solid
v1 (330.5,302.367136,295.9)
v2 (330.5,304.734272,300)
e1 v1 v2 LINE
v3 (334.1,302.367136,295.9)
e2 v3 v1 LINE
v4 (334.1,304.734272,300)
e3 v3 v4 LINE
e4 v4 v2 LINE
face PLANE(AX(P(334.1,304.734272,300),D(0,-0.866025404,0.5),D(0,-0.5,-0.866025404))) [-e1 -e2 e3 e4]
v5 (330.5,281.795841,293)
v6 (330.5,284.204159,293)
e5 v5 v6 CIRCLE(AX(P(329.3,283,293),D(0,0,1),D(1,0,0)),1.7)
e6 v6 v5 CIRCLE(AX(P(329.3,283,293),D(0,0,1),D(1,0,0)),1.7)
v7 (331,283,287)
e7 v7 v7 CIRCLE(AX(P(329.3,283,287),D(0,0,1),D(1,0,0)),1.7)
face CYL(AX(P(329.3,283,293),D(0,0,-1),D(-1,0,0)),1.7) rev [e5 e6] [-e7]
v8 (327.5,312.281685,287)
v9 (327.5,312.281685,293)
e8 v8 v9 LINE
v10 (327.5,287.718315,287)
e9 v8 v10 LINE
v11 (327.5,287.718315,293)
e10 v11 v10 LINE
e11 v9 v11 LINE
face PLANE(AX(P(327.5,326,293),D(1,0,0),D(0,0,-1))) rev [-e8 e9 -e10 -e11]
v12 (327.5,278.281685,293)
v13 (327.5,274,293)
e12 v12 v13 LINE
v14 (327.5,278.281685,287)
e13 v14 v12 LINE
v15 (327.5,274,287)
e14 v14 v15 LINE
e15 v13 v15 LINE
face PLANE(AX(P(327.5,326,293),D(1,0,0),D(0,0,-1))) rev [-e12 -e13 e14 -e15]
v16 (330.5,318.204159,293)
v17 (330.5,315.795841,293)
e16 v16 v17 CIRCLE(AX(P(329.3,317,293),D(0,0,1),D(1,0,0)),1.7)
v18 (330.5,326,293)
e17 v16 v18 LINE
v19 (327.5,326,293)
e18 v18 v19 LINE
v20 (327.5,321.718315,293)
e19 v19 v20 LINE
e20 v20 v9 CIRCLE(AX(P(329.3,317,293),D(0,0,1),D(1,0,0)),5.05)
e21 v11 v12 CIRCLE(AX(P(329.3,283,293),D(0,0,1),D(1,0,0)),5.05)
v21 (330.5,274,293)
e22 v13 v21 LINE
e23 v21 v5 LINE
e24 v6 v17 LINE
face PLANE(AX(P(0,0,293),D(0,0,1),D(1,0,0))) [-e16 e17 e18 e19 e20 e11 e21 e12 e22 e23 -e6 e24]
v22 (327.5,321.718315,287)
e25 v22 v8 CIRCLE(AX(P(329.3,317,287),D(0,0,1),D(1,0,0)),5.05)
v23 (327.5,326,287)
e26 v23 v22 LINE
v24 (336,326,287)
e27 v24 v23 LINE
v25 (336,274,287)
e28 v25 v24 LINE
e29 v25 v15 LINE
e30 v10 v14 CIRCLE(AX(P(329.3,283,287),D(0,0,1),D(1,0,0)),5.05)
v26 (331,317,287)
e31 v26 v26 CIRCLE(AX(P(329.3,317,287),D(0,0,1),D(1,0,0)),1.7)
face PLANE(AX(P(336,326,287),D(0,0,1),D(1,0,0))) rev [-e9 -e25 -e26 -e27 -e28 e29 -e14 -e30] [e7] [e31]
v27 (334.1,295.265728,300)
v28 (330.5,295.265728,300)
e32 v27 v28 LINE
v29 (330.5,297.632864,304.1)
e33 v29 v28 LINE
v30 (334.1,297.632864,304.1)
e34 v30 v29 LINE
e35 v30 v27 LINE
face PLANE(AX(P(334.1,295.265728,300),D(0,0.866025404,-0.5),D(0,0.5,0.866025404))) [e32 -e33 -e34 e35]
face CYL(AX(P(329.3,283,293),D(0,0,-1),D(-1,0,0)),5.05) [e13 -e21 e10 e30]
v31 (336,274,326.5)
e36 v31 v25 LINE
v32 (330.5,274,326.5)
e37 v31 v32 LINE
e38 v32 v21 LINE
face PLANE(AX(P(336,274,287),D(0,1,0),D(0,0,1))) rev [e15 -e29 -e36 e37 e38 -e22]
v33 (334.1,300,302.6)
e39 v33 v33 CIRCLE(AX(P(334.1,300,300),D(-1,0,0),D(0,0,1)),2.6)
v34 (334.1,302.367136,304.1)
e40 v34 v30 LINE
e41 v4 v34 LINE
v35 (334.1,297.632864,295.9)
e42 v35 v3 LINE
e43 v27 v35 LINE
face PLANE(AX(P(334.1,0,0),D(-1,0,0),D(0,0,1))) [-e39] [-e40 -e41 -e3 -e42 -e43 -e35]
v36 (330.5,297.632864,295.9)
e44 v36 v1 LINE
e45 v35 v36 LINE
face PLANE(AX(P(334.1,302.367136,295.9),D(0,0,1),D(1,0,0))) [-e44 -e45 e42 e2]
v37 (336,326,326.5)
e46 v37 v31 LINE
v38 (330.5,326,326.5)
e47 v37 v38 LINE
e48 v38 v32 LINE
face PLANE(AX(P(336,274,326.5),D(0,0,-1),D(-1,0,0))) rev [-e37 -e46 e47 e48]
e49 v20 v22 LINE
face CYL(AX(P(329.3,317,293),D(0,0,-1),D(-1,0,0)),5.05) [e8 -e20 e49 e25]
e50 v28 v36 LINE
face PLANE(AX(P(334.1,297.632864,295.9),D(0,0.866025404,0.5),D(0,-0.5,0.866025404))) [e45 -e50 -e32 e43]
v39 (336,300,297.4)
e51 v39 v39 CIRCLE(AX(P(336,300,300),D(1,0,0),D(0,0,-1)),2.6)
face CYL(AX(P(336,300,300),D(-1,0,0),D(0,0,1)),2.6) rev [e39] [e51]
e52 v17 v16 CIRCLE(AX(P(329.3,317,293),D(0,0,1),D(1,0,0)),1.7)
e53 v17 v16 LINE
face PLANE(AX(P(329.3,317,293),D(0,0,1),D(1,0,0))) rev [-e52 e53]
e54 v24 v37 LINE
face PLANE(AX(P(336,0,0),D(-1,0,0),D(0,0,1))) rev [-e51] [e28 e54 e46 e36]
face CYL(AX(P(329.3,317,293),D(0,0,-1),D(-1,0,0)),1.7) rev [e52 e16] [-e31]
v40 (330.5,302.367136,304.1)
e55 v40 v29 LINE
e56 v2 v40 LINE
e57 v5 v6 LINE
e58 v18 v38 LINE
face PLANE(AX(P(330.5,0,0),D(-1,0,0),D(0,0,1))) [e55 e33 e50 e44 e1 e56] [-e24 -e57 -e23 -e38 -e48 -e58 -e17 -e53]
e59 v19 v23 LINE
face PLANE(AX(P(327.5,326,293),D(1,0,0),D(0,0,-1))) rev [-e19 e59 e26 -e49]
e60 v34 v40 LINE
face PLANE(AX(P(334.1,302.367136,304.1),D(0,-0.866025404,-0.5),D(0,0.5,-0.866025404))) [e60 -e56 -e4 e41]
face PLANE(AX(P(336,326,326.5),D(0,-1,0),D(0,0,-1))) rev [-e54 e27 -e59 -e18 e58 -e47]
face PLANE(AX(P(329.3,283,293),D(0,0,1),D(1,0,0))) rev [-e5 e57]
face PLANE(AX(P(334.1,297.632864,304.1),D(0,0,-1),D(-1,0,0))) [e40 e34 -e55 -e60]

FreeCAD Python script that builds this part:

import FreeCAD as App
import Part
import Sketcher
from FreeCAD import Vector
Q = App.Units.Quantity


def add_polygon(sketch, points):
    """Adds a closed chain of lines whose ends are joined by coincident constraints."""
    first, n = sketch.GeometryCount, len(points)
    for a, b in zip(points, points[1:] + points[:1]):
        sketch.addGeometry(Part.LineSegment(App.Vector(*a, 0), App.Vector(*b, 0)), False)
    for i in range(n):
        sketch.addConstraint(Sketcher.Constraint("Coincident", first + i, 2, first + (i + 1) % n, 1))

doc = App.newDocument("Part")
body = doc.addObject("PartDesign::Body", "Body")

# Sketch on YZ plane
sketch1 = doc.addObject("Sketcher::SketchObject", "Sketch")
body.addObject(sketch1)
sketch1.AttachmentSupport = (doc.YZ_Plane, [""])
sketch1.MapMode = "FlatFace"
sketch1.AttachmentOffset = App.Placement(Vector(0, 0, 330.5), App.Rotation())
add_polygon(sketch1, [(326, 326.5), (274, 326.5), (274, 287), (326, 287)])  # lines 0-3
sketch1.addGeometry(Part.Circle(Vector(300, 300, 0), Vector(0, 0, 1), 2.6), False)  # 4
sketch1.addConstraint([
    Sketcher.Constraint("Horizontal", 0),
    Sketcher.Constraint("Vertical", 1),
    Sketcher.Constraint("Horizontal", 2),
    Sketcher.Constraint("Vertical", 3),
    Sketcher.Constraint("Diameter", 4, Q("5.2 mm")),
    Sketcher.Constraint("DistanceX", 0, 2, 0, 1, Q("52 mm")),
    Sketcher.Constraint("DistanceY", 1, 2, 1, 1, Q("39.5 mm")),
    Sketcher.Constraint("DistanceX", -1, 1, 4, 3, Q("300 mm")),
    Sketcher.Constraint("DistanceY", -1, 1, 4, 3, Q("300 mm")),
    Sketcher.Constraint("DistanceX", -1, 1, 0, 2, Q("274 mm")),
    Sketcher.Constraint("DistanceY", -1, 1, 1, 2, Q("287 mm")),
])
pad1 = doc.addObject("PartDesign::Pad", "Pad")
body.addObject(pad1)
pad1.Profile = sketch1
pad1.Length = 5.5

# Sketch on YZ plane
sketch2 = doc.addObject("Sketcher::SketchObject", "Sketch001")
body.addObject(sketch2)
sketch2.AttachmentSupport = (doc.YZ_Plane, [""])
sketch2.MapMode = "FlatFace"
sketch2.AttachmentOffset = App.Placement(Vector(0, 0, 330.5), App.Rotation())
add_polygon(sketch2, [(304.7, 300), (302.4, 304.1), (297.6, 304.1), (295.3, 300), (297.6, 295.9), (302.4, 295.9)])  # lines 0-5
sketch2.addConstraint([
    Sketcher.Constraint("Horizontal", 1),
    Sketcher.Constraint("Horizontal", 4),
    Sketcher.Constraint("Parallel", 0, 3),
    Sketcher.Constraint("Parallel", 2, 5),
    Sketcher.Constraint("Horizontal", 2, 2, 5, 2),
    Sketcher.Constraint("Vertical", 1, 2, 3, 2),
    Sketcher.Constraint("Vertical", 0, 2, 4, 2),
    Sketcher.Constraint("Angle", 0, Q("120 deg")),
    Sketcher.Constraint("DistanceY", -1, 1, 2, 2, Q("300 mm")),
    Sketcher.Constraint("DistanceY", -1, 1, 0, 2, Q("304.1 mm")),
    Sketcher.Constraint("DistanceX", 1, 2, 1, 1, Q("4.734272 mm")),
    Sketcher.Constraint("DistanceX", -1, 1, 0, 2, Q("302.367136 mm")),
])
pocket1 = doc.addObject("PartDesign::Pocket", "Pocket")
body.addObject(pocket1)
pocket1.Profile = sketch2
pocket1.Length = 3.6
pocket1.Reversed = True

# Sketch on XY plane
sketch3 = doc.addObject("Sketcher::SketchObject", "Sketch002")
body.addObject(sketch3)
sketch3.AttachmentSupport = (doc.XY_Plane, [""])
sketch3.MapMode = "FlatFace"
sketch3.AttachmentOffset = App.Placement(Vector(0, 0, 287), App.Rotation())
add_polygon(sketch3, [(328, 326), (328, 274), (336, 274), (336, 326)])  # lines 0-3
sketch3.addConstraint([
    Sketcher.Constraint("Vertical", 0),
    Sketcher.Constraint("Horizontal", 1),
    Sketcher.Constraint("Vertical", 2),
    Sketcher.Constraint("Horizontal", 3),
    Sketcher.Constraint("DistanceY", 0, 2, 0, 1, Q("52 mm")),
    Sketcher.Constraint("DistanceX", 1, 1, 1, 2, Q("8.5 mm")),
    Sketcher.Constraint("DistanceY", -1, 1, 0, 2, Q("274 mm")),
    Sketcher.Constraint("DistanceX", -1, 1, 1, 2, Q("336 mm")),
])
pad2 = doc.addObject("PartDesign::Pad", "Pad001")
body.addObject(pad2)
pad2.Profile = sketch3
pad2.Length = 6

# Sketch on XY plane
sketch4 = doc.addObject("Sketcher::SketchObject", "Sketch003")
body.addObject(sketch4)
sketch4.AttachmentSupport = (doc.XY_Plane, [""])
sketch4.MapMode = "FlatFace"
sketch4.AttachmentOffset = App.Placement(Vector(0, 0, 287), App.Rotation())
sketch4.addGeometry([
    Part.Circle(Vector(329.3, 283, 0), Vector(0, 0, 1), 5),
    Part.Circle(Vector(329.3, 283, 0), Vector(0, 0, 1), 1.7),
], False)
sketch4.addConstraint([
    Sketcher.Constraint("Coincident", 1, 3, 0, 3),
    Sketcher.Constraint("Diameter", 0, Q("10.1 mm")),
    Sketcher.Constraint("Diameter", 1, Q("3.4 mm")),
    Sketcher.Constraint("DistanceY", -1, 1, 0, 3, Q("283 mm")),
    Sketcher.Constraint("DistanceX", -1, 1, 0, 3, Q("329.3 mm")),
])
pad3 = doc.addObject("PartDesign::Pad", "Pad002")
body.addObject(pad3)
pad3.Profile = sketch4
pad3.Length = 6

# Sketch on XY plane
sketch5 = doc.addObject("Sketcher::SketchObject", "Sketch004")
body.addObject(sketch5)
sketch5.AttachmentSupport = (doc.XY_Plane, [""])
sketch5.MapMode = "FlatFace"
sketch5.AttachmentOffset = App.Placement(Vector(0, 0, 287), App.Rotation())
sketch5.addGeometry([
    Part.Circle(Vector(329.3, 317, 0), Vector(0, 0, 1), 5),
    Part.Circle(Vector(329.3, 317, 0), Vector(0, 0, 1), 1.7),
], False)
sketch5.addConstraint([
    Sketcher.Constraint("Coincident", 1, 3, 0, 3),
    Sketcher.Constraint("Diameter", 0, Q("10.1 mm")),
    Sketcher.Constraint("Diameter", 1, Q("3.4 mm")),
    Sketcher.Constraint("DistanceY", -1, 1, 0, 3, Q("317 mm")),
    Sketcher.Constraint("DistanceX", -1, 1, 0, 3, Q("329.3 mm")),
])
pad4 = doc.addObject("PartDesign::Pad", "Pad003")
body.addObject(pad4)
pad4.Profile = sketch5
pad4.Length = 6

# Sketch on XY plane
sketch6 = doc.addObject("Sketcher::SketchObject", "Sketch005")
body.addObject(sketch6)
sketch6.AttachmentSupport = (doc.XY_Plane, [""])
sketch6.MapMode = "FlatFace"
sketch6.AttachmentOffset = App.Placement(Vector(0, 0, 287), App.Rotation())
sketch6.addGeometry([
    Part.Circle(Vector(329.3, 283, 0), Vector(0, 0, 1), 1.7),
    Part.Circle(Vector(329.3, 317, 0), Vector(0, 0, 1), 1.7),
], False)
sketch6.addConstraint([
    Sketcher.Constraint("Equal", 0, 1),
    Sketcher.Constraint("Vertical", 0, 3, 1, 3),
    Sketcher.Constraint("Diameter", 0, Q("3.4 mm")),
    Sketcher.Constraint("DistanceY", -1, 1, 0, 3, Q("283 mm")),
    Sketcher.Constraint("DistanceY", -1, 1, 1, 3, Q("317 mm")),
    Sketcher.Constraint("DistanceX", -1, 1, 0, 3, Q("329.3 mm")),
])
pocket2 = doc.addObject("PartDesign::Pocket", "Pocket001")
body.addObject(pocket2)
pocket2.Profile = sketch6
pocket2.Length = 6
pocket2.Reversed = True

doc.recompute()
